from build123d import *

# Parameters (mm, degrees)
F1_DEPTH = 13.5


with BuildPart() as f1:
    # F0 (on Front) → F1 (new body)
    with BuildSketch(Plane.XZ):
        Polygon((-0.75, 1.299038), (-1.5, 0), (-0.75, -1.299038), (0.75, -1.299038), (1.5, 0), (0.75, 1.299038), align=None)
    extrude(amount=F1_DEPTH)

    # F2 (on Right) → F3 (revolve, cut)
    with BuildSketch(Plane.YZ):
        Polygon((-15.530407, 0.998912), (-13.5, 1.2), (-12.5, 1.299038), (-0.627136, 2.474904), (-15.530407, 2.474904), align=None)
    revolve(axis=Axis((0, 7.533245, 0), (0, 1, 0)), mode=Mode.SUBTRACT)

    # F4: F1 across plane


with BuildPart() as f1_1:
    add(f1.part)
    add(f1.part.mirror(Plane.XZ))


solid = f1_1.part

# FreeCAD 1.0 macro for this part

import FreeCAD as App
import Part
import Sketcher
from FreeCAD import Vector
Q = App.Units.Quantity


def add_polygon(sketch, points):
    """Adds a closed chain of lines whose ends are joined by coincident constraints."""
    first, n = sketch.GeometryCount, len(points)
    for a, b in zip(points, points[1:] + points[:1]):
        sketch.addGeometry(Part.LineSegment(App.Vector(*a, 0), App.Vector(*b, 0)), False)
    for i in range(n):
        sketch.addConstraint(Sketcher.Constraint("Coincident", first + i, 2, first + (i + 1) % n, 1))

doc = App.newDocument("Part")
body = doc.addObject("PartDesign::Body", "Body")

# Sketch on XZ plane
sketch1 = doc.addObject("Sketcher::SketchObject", "Sketch")
body.addObject(sketch1)
sketch1.AttachmentSupport = (doc.XZ_Plane, [""])
sketch1.MapMode = "FlatFace"
add_polygon(sketch1, [(-0.8, 1.3), (-1.5, 0), (-0.8, -1.3), (0.8, -1.3), (1.5, 0), (0.8, 1.3)])  # lines 0-5
sketch1.addConstraint(Sketcher.Constraint("Horizontal", 2))
sketch1.addConstraint(Sketcher.Constraint("Horizontal", 5))
sketch1.addConstraint(Sketcher.Constraint("Symmetric", 0, 2, 3, 2, -1, 1))
sketch1.addConstraint(Sketcher.Constraint("Symmetric", 1, 2, 4, 2, -1, 1))
sketch1.addConstraint(Sketcher.Constraint("PointOnObject", 0, 2, -1))
sketch1.addConstraint(Sketcher.Constraint("Parallel", 0, 3))
sketch1.addConstraint(Sketcher.Constraint("Vertical", 2, 2, 4, 2))
sketch1.addConstraint(Sketcher.Constraint("Angle", 0, Q("-120.000002 deg")))
sketch1.addConstraint(Sketcher.Constraint("DistanceX", 2, 1, 2, 2, 1.5))
sketch1.addConstraint(Sketcher.Constraint("DistanceX", 0, 2, 3, 2, 3.0))
pad1 = doc.addObject("PartDesign::Pad", "Pad")
body.addObject(pad1)
pad1.Profile = sketch1
pad1.Length = 13.5

# Sketch on YZ plane
sketch2 = doc.addObject("Sketcher::SketchObject", "Sketch001")
body.addObject(sketch2)
sketch2.AttachmentSupport = (doc.YZ_Plane, [""])
sketch2.MapMode = "FlatFace"
add_polygon(sketch2, [(-15.5, 1), (-13.5, 1.2), (-12.5, 1.3), (-0.6, 2.5), (-15.5, 2.5)])  # lines 0-4
sketch2.addConstraint(Sketcher.Constraint("Horizontal", 3))
sketch2.addConstraint(Sketcher.Constraint("Vertical", 4))
sketch2.addConstraint(Sketcher.Constraint("Parallel", 0, 1))
sketch2.addConstraint(Sketcher.Constraint("Parallel", 1, 2))
sketch2.addConstraint(Sketcher.Constraint("DistanceX", 0, 2, 1, 2, 1.0))
sketch2.addConstraint(Sketcher.Constraint("DistanceX", 0, 2, -1, 1, 13.5))
sketch2.addConstraint(Sketcher.Constraint("DistanceY", -1, 1, 0, 2, 1.2))
sketch2.addConstraint(Sketcher.Constraint("DistanceX", 3, 2, 3, 1, 14.903271))
sketch2.addConstraint(Sketcher.Constraint("Distance", 0, 2.04034))
sketch2.addConstraint(Sketcher.Constraint("Distance", 2, 11.93095))
groove = doc.addObject("PartDesign::Groove", "Groove")
body.addObject(groove)
groove.Profile = sketch2
groove.ReferenceAxis = (sketch2, ["H_Axis"])
groove.Angle = 360
body2 = doc.addObject("PartDesign::Body", "Body001")
doc.recompute()

body2.BaseFeature = body
doc.recompute()

mirroring = doc.addObject("Part::Mirroring", "Mirroring")
mirroring.Source = body
mirroring.Base = Vector(0, 0, 0)
mirroring.Normal = Vector(0, -1, 0)
body3 = doc.addObject("PartDesign::Body", "Body002")
body3.BaseFeature = mirroring
boolean = doc.addObject("PartDesign::Boolean", "Boolean")
body2.addObject(boolean)
boolean.Type = "Fuse"
boolean.addObjects([body3])
doc.recompute()
mirroring.Visibility = False

doc.recompute()
